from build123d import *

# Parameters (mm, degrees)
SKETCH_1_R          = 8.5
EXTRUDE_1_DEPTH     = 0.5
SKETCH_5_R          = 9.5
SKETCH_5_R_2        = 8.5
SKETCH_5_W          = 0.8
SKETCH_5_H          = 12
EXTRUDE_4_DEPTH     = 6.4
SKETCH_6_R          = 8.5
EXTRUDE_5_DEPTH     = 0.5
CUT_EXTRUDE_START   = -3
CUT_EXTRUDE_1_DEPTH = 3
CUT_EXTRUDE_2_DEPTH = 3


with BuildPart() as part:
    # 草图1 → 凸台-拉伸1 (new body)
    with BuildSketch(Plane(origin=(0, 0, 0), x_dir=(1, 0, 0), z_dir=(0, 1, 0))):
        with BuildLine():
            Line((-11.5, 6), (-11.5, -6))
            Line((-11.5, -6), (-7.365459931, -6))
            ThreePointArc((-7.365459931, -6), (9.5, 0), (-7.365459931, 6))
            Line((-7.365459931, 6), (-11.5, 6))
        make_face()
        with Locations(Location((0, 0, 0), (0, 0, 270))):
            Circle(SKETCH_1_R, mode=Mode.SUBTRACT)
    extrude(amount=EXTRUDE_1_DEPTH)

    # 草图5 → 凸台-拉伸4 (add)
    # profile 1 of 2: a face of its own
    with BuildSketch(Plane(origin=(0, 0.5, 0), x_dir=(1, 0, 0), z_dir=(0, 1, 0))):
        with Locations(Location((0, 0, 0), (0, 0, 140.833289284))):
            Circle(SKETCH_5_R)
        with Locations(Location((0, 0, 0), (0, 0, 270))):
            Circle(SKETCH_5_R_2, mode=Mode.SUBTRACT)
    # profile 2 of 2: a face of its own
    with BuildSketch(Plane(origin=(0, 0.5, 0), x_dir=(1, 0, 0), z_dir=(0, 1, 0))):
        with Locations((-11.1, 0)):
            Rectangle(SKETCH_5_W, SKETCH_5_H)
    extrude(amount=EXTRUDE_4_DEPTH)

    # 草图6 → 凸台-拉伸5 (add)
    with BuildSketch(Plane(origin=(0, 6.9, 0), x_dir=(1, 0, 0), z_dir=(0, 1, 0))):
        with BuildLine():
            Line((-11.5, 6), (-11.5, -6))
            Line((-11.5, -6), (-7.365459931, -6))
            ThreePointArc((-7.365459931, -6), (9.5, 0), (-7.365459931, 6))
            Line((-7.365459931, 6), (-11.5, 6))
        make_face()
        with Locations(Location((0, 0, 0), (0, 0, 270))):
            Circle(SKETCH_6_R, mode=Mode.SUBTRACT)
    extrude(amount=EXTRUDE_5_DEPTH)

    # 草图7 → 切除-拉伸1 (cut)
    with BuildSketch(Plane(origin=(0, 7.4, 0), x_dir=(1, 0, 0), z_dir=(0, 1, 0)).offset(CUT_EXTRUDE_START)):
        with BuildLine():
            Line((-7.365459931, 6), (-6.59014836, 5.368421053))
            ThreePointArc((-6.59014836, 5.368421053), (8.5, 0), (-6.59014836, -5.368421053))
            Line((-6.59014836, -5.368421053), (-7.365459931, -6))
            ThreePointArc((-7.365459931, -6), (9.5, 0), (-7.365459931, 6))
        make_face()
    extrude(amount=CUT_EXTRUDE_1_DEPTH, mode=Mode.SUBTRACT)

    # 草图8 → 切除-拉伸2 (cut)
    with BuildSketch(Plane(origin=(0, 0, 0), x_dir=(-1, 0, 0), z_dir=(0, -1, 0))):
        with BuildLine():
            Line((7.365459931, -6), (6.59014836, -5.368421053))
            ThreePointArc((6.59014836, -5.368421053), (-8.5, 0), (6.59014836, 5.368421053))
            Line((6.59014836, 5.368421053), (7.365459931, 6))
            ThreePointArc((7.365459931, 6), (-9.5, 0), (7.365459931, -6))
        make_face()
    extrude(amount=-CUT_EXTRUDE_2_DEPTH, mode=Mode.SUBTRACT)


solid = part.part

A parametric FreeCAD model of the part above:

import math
import FreeCAD as App
import Part
import Sketcher
from FreeCAD import Vector


def add_polygon(sketch, points):
    """Adds a closed chain of lines whose ends are joined by coincident constraints."""
    first, n = sketch.GeometryCount, len(points)
    for a, b in zip(points, points[1:] + points[:1]):
        sketch.addGeometry(Part.LineSegment(App.Vector(*a, 0), App.Vector(*b, 0)), False)
    for i in range(n):
        sketch.addConstraint(Sketcher.Constraint("Coincident", first + i, 2, first + (i + 1) % n, 1))

doc = App.newDocument("Part")
body = doc.addObject("PartDesign::Body", "Body")

# Sketch on XZ plane
sketch1 = body.newObject("Sketcher::SketchObject", "Sketch")
sketch1.AttachmentSupport = (doc.getObject("XZ_Plane"), [""])
sketch1.MapMode = "FlatFace"
sketch1.addGeometry(Part.LineSegment(Vector(-11.5, -6, 0), Vector(-11.5, 6, 0)), False)
sketch1.addGeometry(Part.LineSegment(Vector(-11.5, 6, 0), Vector(-7.36546, 6, 0)), False)
sketch1.addGeometry(Part.ArcOfCircle(Part.Circle(Vector(0, 0, 0), Vector(0, 0, 1), 9.5), math.radians(-140.833289), math.radians(140.833289)), False)
sketch1.addGeometry(Part.LineSegment(Vector(-7.36546, -6, 0), Vector(-11.5, -6, 0)), False)
sketch1.addGeometry(Part.Circle(Vector(0, 0, 0), Vector(0, 0, 1), 8.5), False)
sketch1.addConstraint(Sketcher.Constraint("Coincident", 0, 2, 1, 1))
sketch1.addConstraint(Sketcher.Constraint("Coincident", 1, 2, 2, 2))
sketch1.addConstraint(Sketcher.Constraint("Coincident", 2, 1, 3, 1))
sketch1.addConstraint(Sketcher.Constraint("Coincident", 3, 2, 0, 1))
sketch1.addConstraint(Sketcher.Constraint("Vertical", 0))
sketch1.addConstraint(Sketcher.Constraint("Horizontal", 1))
sketch1.addConstraint(Sketcher.Constraint("Horizontal", 3))
sketch1.addConstraint(Sketcher.Constraint("Coincident", 2, 3, -1, 1))
sketch1.addConstraint(Sketcher.Constraint("Coincident", 4, 3, -1, 1))
sketch1.addConstraint(Sketcher.Constraint("Vertical", 1, 2, 2, 1))
sketch1.addConstraint(Sketcher.Constraint("Diameter", 4, 17.0))
sketch1.addConstraint(Sketcher.Constraint("Radius", 2, 9.5))
sketch1.addConstraint(Sketcher.Constraint("DistanceY", 0, 1, 0, 2, 12.0))
sketch1.addConstraint(Sketcher.Constraint("DistanceX", 0, 2, -1, 1, 11.5))
pad1 = body.newObject("PartDesign::Pad", "Pad")
pad1.Profile = sketch1
pad1.Length = 0.5
pad1.Reversed = True

# Sketch on XZ plane
sketch2 = body.newObject("Sketcher::SketchObject", "Sketch001")
sketch2.AttachmentSupport = (doc.getObject("XZ_Plane"), [""])
sketch2.MapMode = "FlatFace"
sketch2.AttachmentOffset = App.Placement(Vector(0, 0, -0.5), App.Rotation())
sketch2.addGeometry(Part.Circle(Vector(0, 0, 0), Vector(0, 0, 1), 9.5), False)  # 0
sketch2.addGeometry(Part.Circle(Vector(0, 0, 0), Vector(0, 0, 1), 8.5), False)  # 1
add_polygon(sketch2, [(-11.5, -6), (-11.5, 6), (-10.7, 6), (-10.7, -6)])  # lines 2-5
sketch2.addConstraint(Sketcher.Constraint("Vertical", 2))
sketch2.addConstraint(Sketcher.Constraint("Horizontal", 3))
sketch2.addConstraint(Sketcher.Constraint("Vertical", 4))
sketch2.addConstraint(Sketcher.Constraint("Horizontal", 5))
sketch2.addConstraint(Sketcher.Constraint("Coincident", 0, 3, -1, 1))
sketch2.addConstraint(Sketcher.Constraint("Coincident", 1, 3, -1, 1))
sketch2.addConstraint(Sketcher.Constraint("Diameter", 0, 19.0))
sketch2.addConstraint(Sketcher.Constraint("Diameter", 1, 17.0))
sketch2.addConstraint(Sketcher.Constraint("DistanceY", 2, 1, 2, 2, 12.0))
sketch2.addConstraint(Sketcher.Constraint("DistanceX", 3, 1, 3, 2, 0.8))
sketch2.addConstraint(Sketcher.Constraint("DistanceY", -1, 1, 2, 2, 6.0))
sketch2.addConstraint(Sketcher.Constraint("DistanceX", 2, 2, -1, 1, 11.5))
pad2 = body.newObject("PartDesign::Pad", "Pad001")
pad2.Profile = sketch2
pad2.Length = 6.4
pad2.Reversed = True

# Sketch on XZ plane
sketch3 = body.newObject("Sketcher::SketchObject", "Sketch002")
sketch3.AttachmentSupport = (doc.getObject("XZ_Plane"), [""])
sketch3.MapMode = "FlatFace"
sketch3.AttachmentOffset = App.Placement(Vector(0, 0, -6.9), App.Rotation())
sketch3.addGeometry(Part.LineSegment(Vector(-11.5, -6, 0), Vector(-11.5, 6, 0)), False)
sketch3.addGeometry(Part.LineSegment(Vector(-11.5, 6, 0), Vector(-7.36546, 6, 0)), False)
sketch3.addGeometry(Part.ArcOfCircle(Part.Circle(Vector(0, 0, 0), Vector(0, 0, 1), 9.5), math.radians(-140.833289), math.radians(140.833289)), False)
sketch3.addGeometry(Part.LineSegment(Vector(-7.36546, -6, 0), Vector(-11.5, -6, 0)), False)
sketch3.addGeometry(Part.Circle(Vector(0, 0, 0), Vector(0, 0, 1), 8.5), False)
sketch3.addConstraint(Sketcher.Constraint("Coincident", 0, 2, 1, 1))
sketch3.addConstraint(Sketcher.Constraint("Coincident", 1, 2, 2, 2))
sketch3.addConstraint(Sketcher.Constraint("Coincident", 2, 1, 3, 1))
sketch3.addConstraint(Sketcher.Constraint("Coincident", 3, 2, 0, 1))
sketch3.addConstraint(Sketcher.Constraint("Vertical", 0))
sketch3.addConstraint(Sketcher.Constraint("Horizontal", 1))
sketch3.addConstraint(Sketcher.Constraint("Horizontal", 3))
sketch3.addConstraint(Sketcher.Constraint("Coincident", 2, 3, -1, 1))
sketch3.addConstraint(Sketcher.Constraint("Coincident", 4, 3, -1, 1))
sketch3.addConstraint(Sketcher.Constraint("Vertical", 1, 2, 2, 1))
sketch3.addConstraint(Sketcher.Constraint("Diameter", 4, 17.0))
sketch3.addConstraint(Sketcher.Constraint("Radius", 2, 9.5))
sketch3.addConstraint(Sketcher.Constraint("DistanceY", 0, 1, 0, 2, 12.0))
sketch3.addConstraint(Sketcher.Constraint("DistanceX", 0, 2, -1, 1, 11.5))
pad3 = body.newObject("PartDesign::Pad", "Pad002")
pad3.Profile = sketch3
pad3.Length = 0.5
pad3.Reversed = True

# Sketch on XZ plane
sketch4 = body.newObject("Sketcher::SketchObject", "Sketch003")
sketch4.AttachmentSupport = (doc.getObject("XZ_Plane"), [""])
sketch4.MapMode = "FlatFace"
sketch4.AttachmentOffset = App.Placement(Vector(0, 0, -4.4), App.Rotation())
sketch4.addGeometry(Part.LineSegment(Vector(-7.36546, -6, 0), Vector(-6.590148, -5.368421, 0)), False)
sketch4.addGeometry(Part.ArcOfCircle(Part.Circle(Vector(0, 0, 0), Vector(0, 0, 1), 8.5), math.radians(-140.833289), math.radians(140.833289)), False)
sketch4.addGeometry(Part.LineSegment(Vector(-6.590148, 5.368421, 0), Vector(-7.36546, 6, 0)), False)
sketch4.addGeometry(Part.ArcOfCircle(Part.Circle(Vector(0, 0, 0), Vector(0, 0, 1), 9.5), math.radians(-140.833289), math.radians(140.833289)), False)
sketch4.addConstraint(Sketcher.Constraint("Coincident", 0, 2, 1, 1))
sketch4.addConstraint(Sketcher.Constraint("Coincident", 1, 2, 2, 1))
sketch4.addConstraint(Sketcher.Constraint("Coincident", 2, 2, 3, 2))
sketch4.addConstraint(Sketcher.Constraint("Coincident", 3, 1, 0, 1))
sketch4.addConstraint(Sketcher.Constraint("Coincident", 1, 3, -1, 1))
sketch4.addConstraint(Sketcher.Constraint("Coincident", 3, 3, -1, 1))
sketch4.addConstraint(Sketcher.Constraint("Vertical", 0, 2, 1, 2))
sketch4.addConstraint(Sketcher.Constraint("Vertical", 2, 2, 3, 1))
sketch4.addConstraint(Sketcher.Constraint("Radius", 1, 8.5))
sketch4.addConstraint(Sketcher.Constraint("Radius", 3, 9.5))
sketch4.addConstraint(Sketcher.Constraint("DistanceY", -1, 1, 2, 2, 6.0))
sketch4.addConstraint(Sketcher.Constraint("DistanceX", 0, 2, -1, 1, 6.590148))
pocket1 = body.newObject("PartDesign::Pocket", "Pocket")
pocket1.Profile = sketch4
pocket1.Length = 3

# Sketch on XZ plane
sketch5 = body.newObject("Sketcher::SketchObject", "Sketch004")
sketch5.AttachmentSupport = (doc.getObject("XZ_Plane"), [""])
sketch5.MapMode = "FlatFace"
sketch5.addGeometry(Part.LineSegment(Vector(-7.36546, 6, 0), Vector(-6.590148, 5.368421, 0)), False)
sketch5.addGeometry(Part.ArcOfCircle(Part.Circle(Vector(0, 0, 0), Vector(0, 0, 1), 8.5), math.radians(-140.833289), math.radians(140.833289)), False)
sketch5.addGeometry(Part.LineSegment(Vector(-6.590148, -5.368421, 0), Vector(-7.36546, -6, 0)), False)
sketch5.addGeometry(Part.ArcOfCircle(Part.Circle(Vector(0, 0, 0), Vector(0, 0, 1), 9.5), math.radians(-140.833289), math.radians(140.833289)), False)
sketch5.addConstraint(Sketcher.Constraint("Coincident", 0, 2, 1, 2))
sketch5.addConstraint(Sketcher.Constraint("Coincident", 1, 1, 2, 1))
sketch5.addConstraint(Sketcher.Constraint("Coincident", 2, 2, 3, 1))
sketch5.addConstraint(Sketcher.Constraint("Coincident", 3, 2, 0, 1))
sketch5.addConstraint(Sketcher.Constraint("Coincident", 1, 3, -1, 1))
sketch5.addConstraint(Sketcher.Constraint("Coincident", 3, 3, -1, 1))
sketch5.addConstraint(Sketcher.Constraint("Vertical", 0, 2, 1, 1))
sketch5.addConstraint(Sketcher.Constraint("Vertical", 2, 2, 3, 2))
sketch5.addConstraint(Sketcher.Constraint("Radius", 1, 8.5))
sketch5.addConstraint(Sketcher.Constraint("Radius", 3, 9.5))
sketch5.addConstraint(Sketcher.Constraint("DistanceY", 2, 2, -1, 1, 6.0))
sketch5.addConstraint(Sketcher.Constraint("DistanceX", 0, 2, -1, 1, 6.590148))
pocket2 = body.newObject("PartDesign::Pocket", "Pocket001")
pocket2.Profile = sketch5
pocket2.Length = 3

doc.recompute()
